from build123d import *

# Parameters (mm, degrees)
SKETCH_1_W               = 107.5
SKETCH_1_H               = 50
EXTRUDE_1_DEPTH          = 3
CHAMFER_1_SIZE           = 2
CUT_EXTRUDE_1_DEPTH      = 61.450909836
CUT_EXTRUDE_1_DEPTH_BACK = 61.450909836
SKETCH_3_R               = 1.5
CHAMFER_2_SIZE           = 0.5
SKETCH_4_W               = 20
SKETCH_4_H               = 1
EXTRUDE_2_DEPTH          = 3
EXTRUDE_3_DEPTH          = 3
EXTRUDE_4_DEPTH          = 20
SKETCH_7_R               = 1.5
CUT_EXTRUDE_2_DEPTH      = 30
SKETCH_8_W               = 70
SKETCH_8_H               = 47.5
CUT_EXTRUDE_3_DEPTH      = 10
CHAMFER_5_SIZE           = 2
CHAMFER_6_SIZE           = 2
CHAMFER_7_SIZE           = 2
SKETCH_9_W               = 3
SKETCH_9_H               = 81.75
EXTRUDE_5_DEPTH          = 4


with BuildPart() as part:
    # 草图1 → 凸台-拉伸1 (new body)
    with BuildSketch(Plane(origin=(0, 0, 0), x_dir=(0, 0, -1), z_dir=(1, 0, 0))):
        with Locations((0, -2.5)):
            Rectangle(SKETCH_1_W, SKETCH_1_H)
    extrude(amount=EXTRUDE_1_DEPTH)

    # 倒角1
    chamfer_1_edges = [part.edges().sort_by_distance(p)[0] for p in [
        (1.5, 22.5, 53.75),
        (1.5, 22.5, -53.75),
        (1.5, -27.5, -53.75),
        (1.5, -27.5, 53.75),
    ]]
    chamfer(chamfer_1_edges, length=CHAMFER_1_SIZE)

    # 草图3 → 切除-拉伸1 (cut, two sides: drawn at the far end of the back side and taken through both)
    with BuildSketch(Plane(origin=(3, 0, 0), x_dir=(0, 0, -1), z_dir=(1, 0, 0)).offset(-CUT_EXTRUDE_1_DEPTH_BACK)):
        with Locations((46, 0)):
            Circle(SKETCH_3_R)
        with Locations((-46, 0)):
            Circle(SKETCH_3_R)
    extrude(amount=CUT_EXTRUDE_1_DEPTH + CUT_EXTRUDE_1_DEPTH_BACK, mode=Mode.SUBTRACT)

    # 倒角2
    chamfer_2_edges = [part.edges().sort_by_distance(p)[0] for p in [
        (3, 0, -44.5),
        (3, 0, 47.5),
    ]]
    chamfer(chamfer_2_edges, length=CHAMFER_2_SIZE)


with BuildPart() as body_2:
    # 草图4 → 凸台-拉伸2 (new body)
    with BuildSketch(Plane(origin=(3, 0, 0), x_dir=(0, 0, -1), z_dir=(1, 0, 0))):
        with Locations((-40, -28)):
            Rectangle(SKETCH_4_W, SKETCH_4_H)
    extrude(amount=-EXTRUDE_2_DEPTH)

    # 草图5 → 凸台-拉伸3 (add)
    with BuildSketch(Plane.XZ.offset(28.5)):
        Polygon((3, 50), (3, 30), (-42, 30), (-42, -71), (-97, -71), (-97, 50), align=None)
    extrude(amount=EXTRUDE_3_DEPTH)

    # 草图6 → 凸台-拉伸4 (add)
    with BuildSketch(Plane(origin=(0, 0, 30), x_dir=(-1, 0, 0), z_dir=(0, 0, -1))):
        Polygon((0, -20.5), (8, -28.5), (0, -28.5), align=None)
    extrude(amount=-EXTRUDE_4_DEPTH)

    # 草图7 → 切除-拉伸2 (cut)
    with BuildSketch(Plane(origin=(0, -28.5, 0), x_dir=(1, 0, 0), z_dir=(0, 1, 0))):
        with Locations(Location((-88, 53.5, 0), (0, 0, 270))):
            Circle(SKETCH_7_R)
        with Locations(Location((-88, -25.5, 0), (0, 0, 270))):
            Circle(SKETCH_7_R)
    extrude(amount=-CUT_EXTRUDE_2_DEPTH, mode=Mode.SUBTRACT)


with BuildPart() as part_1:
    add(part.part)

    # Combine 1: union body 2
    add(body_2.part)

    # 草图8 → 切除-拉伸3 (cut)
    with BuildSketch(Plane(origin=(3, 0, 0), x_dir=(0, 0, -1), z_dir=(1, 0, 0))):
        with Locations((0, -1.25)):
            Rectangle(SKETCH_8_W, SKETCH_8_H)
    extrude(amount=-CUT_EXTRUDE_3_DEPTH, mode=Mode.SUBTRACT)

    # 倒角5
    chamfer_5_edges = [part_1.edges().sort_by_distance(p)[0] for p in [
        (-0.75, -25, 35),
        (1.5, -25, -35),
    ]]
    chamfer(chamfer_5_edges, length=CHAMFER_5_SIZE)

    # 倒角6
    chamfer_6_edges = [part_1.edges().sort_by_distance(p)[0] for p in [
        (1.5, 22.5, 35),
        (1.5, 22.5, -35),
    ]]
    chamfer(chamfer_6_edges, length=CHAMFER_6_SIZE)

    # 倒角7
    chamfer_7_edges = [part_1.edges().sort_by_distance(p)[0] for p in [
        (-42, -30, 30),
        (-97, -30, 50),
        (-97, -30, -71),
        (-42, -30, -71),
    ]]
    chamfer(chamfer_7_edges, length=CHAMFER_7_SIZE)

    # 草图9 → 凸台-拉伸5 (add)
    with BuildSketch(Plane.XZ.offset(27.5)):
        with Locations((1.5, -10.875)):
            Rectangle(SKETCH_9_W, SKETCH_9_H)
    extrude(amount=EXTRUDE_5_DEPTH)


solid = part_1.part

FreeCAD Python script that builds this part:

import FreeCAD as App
import Part
import Sketcher
Q = App.Units.Quantity


def edges_at(feature, points):
    """Names of the edges that pass closest to the given points."""
    edges = feature.Shape.Edges
    near = lambda p: min(range(len(edges)), key=lambda i: edges[i].distToShape(Part.Vertex(*p))[0])
    return sorted({f"Edge{near(p) + 1}" for p in points})

doc = App.newDocument("Part")
params = doc.addObject("Spreadsheet::Sheet", "Params")
for row, (alias, value) in enumerate([
    ("sketch1_width", "50 mm"),
    ("sketch1_height", "107.5 mm"),
    ("pad1_length", "3 mm"),
    ("chamfer_size", "2 mm"),
    ("sketch2_diameter", "3 mm"),
    ("chamfer2_size", "0.5 mm"),
    ("sketch3_width", "1 mm"),
    ("sketch3_height", "20 mm"),
    ("pad2_length", "3 mm"),
    ("sketch4_width", "100 mm"),
    ("sketch4_width2", "55 mm"),
    ("sketch4_height", "20 mm"),
    ("sketch4_height2", "121 mm"),
    ("pad3_length", "3 mm"),
    ("sketch5_width", "8 mm"),
    ("pad4_length", "20 mm"),
    ("sketch6_diameter", "3 mm"),
    ("pocket2_length", "30 mm"),
    ("sketch7_height", "70 mm"),
    ("sketch7_width", "47.5 mm"),
    ("pocket3_length", "10 mm"),
    ("chamfer3_size", "2 mm"),
    ("chamfer4_size", "2 mm"),
    ("chamfer5_size", "2 mm"),
    ("sketch8_width", "3 mm"),
    ("sketch8_height", "81.75 mm"),
    ("pad5_length", "4 mm"),
], start=1):
    params.set(f"A{row}", alias)
    params.set(f"B{row}", "=" + value)
    params.setAlias(f"B{row}", alias)

body = doc.addObject("PartDesign::Body", "Body")

# Sketch on YZ plane
sketch1 = doc.addObject("Sketcher::SketchObject", "Sketch")
body.addObject(sketch1)
sketch1.AttachmentSupport = (doc.YZ_Plane, [""])
sketch1.MapMode = "FlatFace"
sketch1.addGeometry([
    Part.LineSegment(App.Vector(22, 54, 0), App.Vector(-28, 54, 0)),
    Part.LineSegment(App.Vector(-28, 54, 0), App.Vector(-28, -54, 0)),
    Part.LineSegment(App.Vector(-28, -54, 0), App.Vector(22, -54, 0)),
    Part.LineSegment(App.Vector(22, -54, 0), App.Vector(22, 54, 0)),
], False)
sketch1.addConstraint([
    Sketcher.Constraint("Coincident", 0, 2, 1, 1),
    Sketcher.Constraint("Coincident", 1, 2, 2, 1),
    Sketcher.Constraint("Coincident", 2, 2, 3, 1),
    Sketcher.Constraint("Coincident", 3, 2, 0, 1),
    Sketcher.Constraint("Horizontal", 0),
    Sketcher.Constraint("Vertical", 1),
    Sketcher.Constraint("Horizontal", 2),
    Sketcher.Constraint("Vertical", 3),
    Sketcher.Constraint("DistanceX", 0, 2, 0, 1, Q("50 mm")),
    Sketcher.Constraint("DistanceY", 1, 2, 1, 1, Q("107.5 mm")),
    Sketcher.Constraint("DistanceX", 0, 2, -1, 1, Q("27.5 mm")),
    Sketcher.Constraint("DistanceY", -1, 1, 0, 2, Q("53.75 mm")),
])
sketch1.setExpression("Constraints[8]", "Params.sketch1_width")
sketch1.setExpression("Constraints[9]", "Params.sketch1_height")
pad1 = doc.addObject("PartDesign::Pad", "Pad")
body.addObject(pad1)
pad1.Profile = sketch1
pad1.setExpression("Length", "Params.pad1_length")
doc.recompute()

chamfer = doc.addObject("PartDesign::Chamfer", "Chamfer")
body.addObject(chamfer)
chamfer.Base = (pad1, edges_at(pad1, [
    (1.5, 22.5, 53.75),
    (1.5, 22.5, -53.75),
    (1.5, -27.5, -53.75),
    (1.5, -27.5, 53.75),
]))
chamfer.setExpression("Size", "Params.chamfer_size")

# Sketch on YZ plane
sketch2 = doc.addObject("Sketcher::SketchObject", "Sketch001")
body.addObject(sketch2)
sketch2.AttachmentSupport = (doc.YZ_Plane, [""])
sketch2.MapMode = "FlatFace"
sketch2.AttachmentOffset = App.Placement(App.Vector(0, 0, 3), App.Rotation())
sketch2.addGeometry([
    Part.Circle(App.Vector(0, -46, 0), App.Vector(0, 0, 1), 1.5),
    Part.Circle(App.Vector(0, 46, 0), App.Vector(0, 0, 1), 1.5),
], False)
sketch2.addConstraint([
    Sketcher.Constraint("Equal", 0, 1),
    Sketcher.Constraint("Symmetric", 0, 3, 1, 3, -1, 1),
    Sketcher.Constraint("PointOnObject", 0, 3, -2),
    Sketcher.Constraint("Diameter", 0, Q("3 mm")),
    Sketcher.Constraint("DistanceY", 0, 3, -1, 1, Q("46 mm")),
])
sketch2.setExpression("Constraints[3]", "Params.sketch2_diameter")
pocket1 = doc.addObject("PartDesign::Pocket", "Pocket")
body.addObject(pocket1)
pocket1.Profile = sketch2
pocket1.Type = "ThroughAll"
pocket1.Midplane = True
doc.recompute()

chamfer2 = doc.addObject("PartDesign::Chamfer", "Chamfer001")
body.addObject(chamfer2)
chamfer2.Base = (pocket1, edges_at(pocket1, [(3, 0, -44.5), (3, 0, 47.5)]))
chamfer2.setExpression("Size", "Params.chamfer2_size")
body2 = doc.addObject("PartDesign::Body", "Body001")

# Sketch on YZ plane
sketch3 = doc.addObject("Sketcher::SketchObject", "Sketch002")
body2.addObject(sketch3)
sketch3.AttachmentSupport = (doc.getObject("YZ_Plane001"), [""])
sketch3.MapMode = "FlatFace"
sketch3.AttachmentOffset = App.Placement(App.Vector(0, 0, 3), App.Rotation())
sketch3.addGeometry([
    Part.LineSegment(App.Vector(-27.5, 50, 0), App.Vector(-28.5, 50, 0)),
    Part.LineSegment(App.Vector(-28.5, 50, 0), App.Vector(-28.5, 30, 0)),
    Part.LineSegment(App.Vector(-28.5, 30, 0), App.Vector(-27.5, 30, 0)),
    Part.LineSegment(App.Vector(-27.5, 30, 0), App.Vector(-27.5, 50, 0)),
], False)
sketch3.addConstraint([
    Sketcher.Constraint("Coincident", 0, 2, 1, 1),
    Sketcher.Constraint("Coincident", 1, 2, 2, 1),
    Sketcher.Constraint("Coincident", 2, 2, 3, 1),
    Sketcher.Constraint("Coincident", 3, 2, 0, 1),
    Sketcher.Constraint("Horizontal", 0),
    Sketcher.Constraint("Vertical", 1),
    Sketcher.Constraint("Horizontal", 2),
    Sketcher.Constraint("Vertical", 3),
    Sketcher.Constraint("DistanceX", 0, 2, 0, 1, Q("1 mm")),
    Sketcher.Constraint("DistanceY", 1, 2, 1, 1, Q("20 mm")),
    Sketcher.Constraint("DistanceY", -1, 1, 0, 2, Q("50 mm")),
    Sketcher.Constraint("DistanceX", 0, 2, -1, 1, Q("28.5 mm")),
])
sketch3.setExpression("Constraints[8]", "Params.sketch3_width")
sketch3.setExpression("Constraints[9]", "Params.sketch3_height")
pad2 = doc.addObject("PartDesign::Pad", "Pad001")
body2.addObject(pad2)
pad2.Profile = sketch3
pad2.setExpression("Length", "Params.pad2_length")
pad2.Reversed = True

# Sketch on XZ plane
sketch4 = doc.addObject("Sketcher::SketchObject", "Sketch003")
body2.addObject(sketch4)
sketch4.AttachmentSupport = (doc.getObject("XZ_Plane001"), [""])
sketch4.MapMode = "FlatFace"
sketch4.AttachmentOffset = App.Placement(App.Vector(0, 0, 28.5), App.Rotation())
sketch4.addGeometry([
    Part.LineSegment(App.Vector(3, 30, 0), App.Vector(3, 50, 0)),  # 0
    Part.LineSegment(App.Vector(3, 50, 0), App.Vector(-97, 50, 0)),  # 1
    Part.LineSegment(App.Vector(-97, 50, 0), App.Vector(-97, -71, 0)),  # 2
    Part.LineSegment(App.Vector(-97, -71, 0), App.Vector(-42, -71, 0)),  # 3
    Part.LineSegment(App.Vector(-42, -71, 0), App.Vector(-42, 30, 0)),  # 4
    Part.LineSegment(App.Vector(-42, 30, 0), App.Vector(3, 30, 0)),  # 5
], False)
sketch4.addConstraint([
    Sketcher.Constraint("Coincident", 0, 2, 1, 1),
    Sketcher.Constraint("Coincident", 1, 2, 2, 1),
    Sketcher.Constraint("Coincident", 2, 2, 3, 1),
    Sketcher.Constraint("Coincident", 3, 2, 4, 1),
    Sketcher.Constraint("Coincident", 4, 2, 5, 1),
    Sketcher.Constraint("Coincident", 5, 2, 0, 1),
    Sketcher.Constraint("Vertical", 0),
    Sketcher.Constraint("Horizontal", 1),
    Sketcher.Constraint("Vertical", 2),
    Sketcher.Constraint("Horizontal", 3),
    Sketcher.Constraint("Vertical", 4),
    Sketcher.Constraint("Horizontal", 5),
    Sketcher.Constraint("DistanceX", 1, 2, 1, 1, Q("100 mm")),
    Sketcher.Constraint("DistanceX", 3, 1, 3, 2, Q("55 mm")),
    Sketcher.Constraint("DistanceY", 0, 1, 0, 2, Q("20 mm")),
    Sketcher.Constraint("DistanceY", 2, 2, 2, 1, Q("121 mm")),
    Sketcher.Constraint("DistanceX", -1, 1, 0, 2, Q("3 mm")),
    Sketcher.Constraint("DistanceY", -1, 1, 0, 2, Q("50 mm")),
])
sketch4.setExpression("Constraints[12]", "Params.sketch4_width")
sketch4.setExpression("Constraints[13]", "Params.sketch4_width2")
sketch4.setExpression("Constraints[14]", "Params.sketch4_height")
sketch4.setExpression("Constraints[15]", "Params.sketch4_height2")
pad3 = doc.addObject("PartDesign::Pad", "Pad002")
body2.addObject(pad3)
pad3.Profile = sketch4
pad3.setExpression("Length", "Params.pad3_length")

# Sketch on XY plane
sketch5 = doc.addObject("Sketcher::SketchObject", "Sketch004")
body2.addObject(sketch5)
sketch5.AttachmentSupport = (doc.getObject("XY_Plane001"), [""])
sketch5.MapMode = "FlatFace"
sketch5.AttachmentOffset = App.Placement(App.Vector(0, 0, 30), App.Rotation())
sketch5.addGeometry([
    Part.LineSegment(App.Vector(-8, -28, 0), App.Vector(0, -20, 0)),
    Part.LineSegment(App.Vector(0, -20, 0), App.Vector(0, -28, 0)),
    Part.LineSegment(App.Vector(0, -28, 0), App.Vector(-8, -28, 0)),
], False)
sketch5.addConstraint([
    Sketcher.Constraint("Coincident", 0, 2, 1, 1),
    Sketcher.Constraint("Coincident", 1, 2, 2, 1),
    Sketcher.Constraint("Coincident", 2, 2, 0, 1),
    Sketcher.Constraint("Vertical", 1),
    Sketcher.Constraint("Horizontal", 2),
    Sketcher.Constraint("PointOnObject", 0, 2, -2),
    Sketcher.Constraint("Equal", 2, 1),
    Sketcher.Constraint("DistanceX", 2, 2, 2, 1, Q("8 mm")),
    Sketcher.Constraint("DistanceY", 0, 2, -1, 1, Q("20.5 mm")),
])
sketch5.setExpression("Constraints[7]", "Params.sketch5_width")
pad4 = doc.addObject("PartDesign::Pad", "Pad003")
body2.addObject(pad4)
pad4.Profile = sketch5
pad4.setExpression("Length", "Params.pad4_length")

# Sketch on XZ plane
sketch6 = doc.addObject("Sketcher::SketchObject", "Sketch005")
body2.addObject(sketch6)
sketch6.AttachmentSupport = (doc.getObject("XZ_Plane001"), [""])
sketch6.MapMode = "FlatFace"
sketch6.AttachmentOffset = App.Placement(App.Vector(0, 0, 28.5), App.Rotation())
sketch6.addGeometry([
    Part.Circle(App.Vector(-88, -53.5, 0), App.Vector(0, 0, 1), 1.5),
    Part.Circle(App.Vector(-88, 25.5, 0), App.Vector(0, 0, 1), 1.5),
], False)
sketch6.addConstraint([
    Sketcher.Constraint("Equal", 0, 1),
    Sketcher.Constraint("Vertical", 0, 3, 1, 3),
    Sketcher.Constraint("Diameter", 0, Q("3 mm")),
    Sketcher.Constraint("DistanceX", 0, 3, -1, 1, Q("88 mm")),
    Sketcher.Constraint("DistanceY", 0, 3, 1, 3, Q("79 mm")),
    Sketcher.Constraint("DistanceY", 0, 3, -1, 1, Q("53.5 mm")),
])
sketch6.setExpression("Constraints[2]", "Params.sketch6_diameter")
pocket2 = doc.addObject("PartDesign::Pocket", "Pocket001")
body2.addObject(pocket2)
pocket2.Profile = sketch6
pocket2.setExpression("Length", "Params.pocket2_length")
pocket2.Reversed = True
doc.recompute()

boolean = doc.addObject("PartDesign::Boolean", "Boolean")
body.addObject(boolean)
boolean.Type = "Fuse"
boolean.addObjects([body2])

# Sketch on YZ plane
sketch7 = doc.addObject("Sketcher::SketchObject", "Sketch006")
body.addObject(sketch7)
sketch7.AttachmentSupport = (doc.YZ_Plane, [""])
sketch7.MapMode = "FlatFace"
sketch7.AttachmentOffset = App.Placement(App.Vector(0, 0, 3), App.Rotation())
sketch7.addGeometry([
    Part.LineSegment(App.Vector(22, 35, 0), App.Vector(-25, 35, 0)),
    Part.LineSegment(App.Vector(-25, 35, 0), App.Vector(-25, -35, 0)),
    Part.LineSegment(App.Vector(-25, -35, 0), App.Vector(22, -35, 0)),
    Part.LineSegment(App.Vector(22, -35, 0), App.Vector(22, 35, 0)),
], False)
sketch7.addConstraint([
    Sketcher.Constraint("Coincident", 0, 2, 1, 1),
    Sketcher.Constraint("Coincident", 1, 2, 2, 1),
    Sketcher.Constraint("Coincident", 2, 2, 3, 1),
    Sketcher.Constraint("Coincident", 3, 2, 0, 1),
    Sketcher.Constraint("Horizontal", 0),
    Sketcher.Constraint("Vertical", 1),
    Sketcher.Constraint("Horizontal", 2),
    Sketcher.Constraint("Vertical", 3),
    Sketcher.Constraint("DistanceY", 1, 2, 1, 1, Q("70 mm")),
    Sketcher.Constraint("DistanceX", 0, 2, 0, 1, Q("47.5 mm")),
    Sketcher.Constraint("DistanceX", 0, 2, -1, 1, Q("25 mm")),
    Sketcher.Constraint("DistanceY", -1, 1, 0, 2, Q("35 mm")),
])
sketch7.setExpression("Constraints[8]", "Params.sketch7_height")
sketch7.setExpression("Constraints[9]", "Params.sketch7_width")
pocket3 = doc.addObject("PartDesign::Pocket", "Pocket002")
body.addObject(pocket3)
pocket3.Profile = sketch7
pocket3.setExpression("Length", "Params.pocket3_length")
doc.recompute()

chamfer3 = doc.addObject("PartDesign::Chamfer", "Chamfer002")
body.addObject(chamfer3)
chamfer3.Base = (pocket3, edges_at(pocket3, [(-0.75, -25, 35), (1.5, -25, -35)]))
chamfer3.setExpression("Size", "Params.chamfer3_size")
doc.recompute()

chamfer4 = doc.addObject("PartDesign::Chamfer", "Chamfer003")
body.addObject(chamfer4)
chamfer4.Base = (chamfer3, edges_at(chamfer3, [(1.5, 22.5, 35), (1.5, 22.5, -35)]))
chamfer4.setExpression("Size", "Params.chamfer4_size")
doc.recompute()

chamfer5 = doc.addObject("PartDesign::Chamfer", "Chamfer004")
body.addObject(chamfer5)
chamfer5.Base = (chamfer4, edges_at(chamfer4, [
    (-42, -30, 30),
    (-97, -30, 50),
    (-97, -30, -71),
    (-42, -30, -71),
]))
chamfer5.setExpression("Size", "Params.chamfer5_size")

# Sketch on XZ plane
sketch8 = doc.addObject("Sketcher::SketchObject", "Sketch007")
body.addObject(sketch8)
sketch8.AttachmentSupport = (doc.XZ_Plane, [""])
sketch8.MapMode = "FlatFace"
sketch8.AttachmentOffset = App.Placement(App.Vector(0, 0, 27.5), App.Rotation())
sketch8.addGeometry([
    Part.LineSegment(App.Vector(0, 30, 0), App.Vector(0, -51.8, 0)),
    Part.LineSegment(App.Vector(0, -51.8, 0), App.Vector(3, -51.8, 0)),
    Part.LineSegment(App.Vector(3, -51.8, 0), App.Vector(3, 30, 0)),
    Part.LineSegment(App.Vector(3, 30, 0), App.Vector(0, 30, 0)),
], False)
sketch8.addConstraint([
    Sketcher.Constraint("Coincident", 0, 2, 1, 1),
    Sketcher.Constraint("Coincident", 1, 2, 2, 1),
    Sketcher.Constraint("Coincident", 2, 2, 3, 1),
    Sketcher.Constraint("Coincident", 3, 2, 0, 1),
    Sketcher.Constraint("Vertical", 0),
    Sketcher.Constraint("Horizontal", 1),
    Sketcher.Constraint("Vertical", 2),
    Sketcher.Constraint("Horizontal", 3),
    Sketcher.Constraint("PointOnObject", 0, 2, -2),
    Sketcher.Constraint("DistanceX", 1, 1, 1, 2, Q("3 mm")),
    Sketcher.Constraint("DistanceY", -1, 1, 2, 2, Q("30 mm")),
    Sketcher.Constraint("DistanceY", 0, 2, 0, 1, Q("81.75 mm")),
])
sketch8.setExpression("Constraints[9]", "Params.sketch8_width")
sketch8.setExpression("Constraints[11]", "Params.sketch8_height")
pad5 = doc.addObject("PartDesign::Pad", "Pad004")
body.addObject(pad5)
pad5.Profile = sketch8
pad5.setExpression("Length", "Params.pad5_length")

doc.recompute()
